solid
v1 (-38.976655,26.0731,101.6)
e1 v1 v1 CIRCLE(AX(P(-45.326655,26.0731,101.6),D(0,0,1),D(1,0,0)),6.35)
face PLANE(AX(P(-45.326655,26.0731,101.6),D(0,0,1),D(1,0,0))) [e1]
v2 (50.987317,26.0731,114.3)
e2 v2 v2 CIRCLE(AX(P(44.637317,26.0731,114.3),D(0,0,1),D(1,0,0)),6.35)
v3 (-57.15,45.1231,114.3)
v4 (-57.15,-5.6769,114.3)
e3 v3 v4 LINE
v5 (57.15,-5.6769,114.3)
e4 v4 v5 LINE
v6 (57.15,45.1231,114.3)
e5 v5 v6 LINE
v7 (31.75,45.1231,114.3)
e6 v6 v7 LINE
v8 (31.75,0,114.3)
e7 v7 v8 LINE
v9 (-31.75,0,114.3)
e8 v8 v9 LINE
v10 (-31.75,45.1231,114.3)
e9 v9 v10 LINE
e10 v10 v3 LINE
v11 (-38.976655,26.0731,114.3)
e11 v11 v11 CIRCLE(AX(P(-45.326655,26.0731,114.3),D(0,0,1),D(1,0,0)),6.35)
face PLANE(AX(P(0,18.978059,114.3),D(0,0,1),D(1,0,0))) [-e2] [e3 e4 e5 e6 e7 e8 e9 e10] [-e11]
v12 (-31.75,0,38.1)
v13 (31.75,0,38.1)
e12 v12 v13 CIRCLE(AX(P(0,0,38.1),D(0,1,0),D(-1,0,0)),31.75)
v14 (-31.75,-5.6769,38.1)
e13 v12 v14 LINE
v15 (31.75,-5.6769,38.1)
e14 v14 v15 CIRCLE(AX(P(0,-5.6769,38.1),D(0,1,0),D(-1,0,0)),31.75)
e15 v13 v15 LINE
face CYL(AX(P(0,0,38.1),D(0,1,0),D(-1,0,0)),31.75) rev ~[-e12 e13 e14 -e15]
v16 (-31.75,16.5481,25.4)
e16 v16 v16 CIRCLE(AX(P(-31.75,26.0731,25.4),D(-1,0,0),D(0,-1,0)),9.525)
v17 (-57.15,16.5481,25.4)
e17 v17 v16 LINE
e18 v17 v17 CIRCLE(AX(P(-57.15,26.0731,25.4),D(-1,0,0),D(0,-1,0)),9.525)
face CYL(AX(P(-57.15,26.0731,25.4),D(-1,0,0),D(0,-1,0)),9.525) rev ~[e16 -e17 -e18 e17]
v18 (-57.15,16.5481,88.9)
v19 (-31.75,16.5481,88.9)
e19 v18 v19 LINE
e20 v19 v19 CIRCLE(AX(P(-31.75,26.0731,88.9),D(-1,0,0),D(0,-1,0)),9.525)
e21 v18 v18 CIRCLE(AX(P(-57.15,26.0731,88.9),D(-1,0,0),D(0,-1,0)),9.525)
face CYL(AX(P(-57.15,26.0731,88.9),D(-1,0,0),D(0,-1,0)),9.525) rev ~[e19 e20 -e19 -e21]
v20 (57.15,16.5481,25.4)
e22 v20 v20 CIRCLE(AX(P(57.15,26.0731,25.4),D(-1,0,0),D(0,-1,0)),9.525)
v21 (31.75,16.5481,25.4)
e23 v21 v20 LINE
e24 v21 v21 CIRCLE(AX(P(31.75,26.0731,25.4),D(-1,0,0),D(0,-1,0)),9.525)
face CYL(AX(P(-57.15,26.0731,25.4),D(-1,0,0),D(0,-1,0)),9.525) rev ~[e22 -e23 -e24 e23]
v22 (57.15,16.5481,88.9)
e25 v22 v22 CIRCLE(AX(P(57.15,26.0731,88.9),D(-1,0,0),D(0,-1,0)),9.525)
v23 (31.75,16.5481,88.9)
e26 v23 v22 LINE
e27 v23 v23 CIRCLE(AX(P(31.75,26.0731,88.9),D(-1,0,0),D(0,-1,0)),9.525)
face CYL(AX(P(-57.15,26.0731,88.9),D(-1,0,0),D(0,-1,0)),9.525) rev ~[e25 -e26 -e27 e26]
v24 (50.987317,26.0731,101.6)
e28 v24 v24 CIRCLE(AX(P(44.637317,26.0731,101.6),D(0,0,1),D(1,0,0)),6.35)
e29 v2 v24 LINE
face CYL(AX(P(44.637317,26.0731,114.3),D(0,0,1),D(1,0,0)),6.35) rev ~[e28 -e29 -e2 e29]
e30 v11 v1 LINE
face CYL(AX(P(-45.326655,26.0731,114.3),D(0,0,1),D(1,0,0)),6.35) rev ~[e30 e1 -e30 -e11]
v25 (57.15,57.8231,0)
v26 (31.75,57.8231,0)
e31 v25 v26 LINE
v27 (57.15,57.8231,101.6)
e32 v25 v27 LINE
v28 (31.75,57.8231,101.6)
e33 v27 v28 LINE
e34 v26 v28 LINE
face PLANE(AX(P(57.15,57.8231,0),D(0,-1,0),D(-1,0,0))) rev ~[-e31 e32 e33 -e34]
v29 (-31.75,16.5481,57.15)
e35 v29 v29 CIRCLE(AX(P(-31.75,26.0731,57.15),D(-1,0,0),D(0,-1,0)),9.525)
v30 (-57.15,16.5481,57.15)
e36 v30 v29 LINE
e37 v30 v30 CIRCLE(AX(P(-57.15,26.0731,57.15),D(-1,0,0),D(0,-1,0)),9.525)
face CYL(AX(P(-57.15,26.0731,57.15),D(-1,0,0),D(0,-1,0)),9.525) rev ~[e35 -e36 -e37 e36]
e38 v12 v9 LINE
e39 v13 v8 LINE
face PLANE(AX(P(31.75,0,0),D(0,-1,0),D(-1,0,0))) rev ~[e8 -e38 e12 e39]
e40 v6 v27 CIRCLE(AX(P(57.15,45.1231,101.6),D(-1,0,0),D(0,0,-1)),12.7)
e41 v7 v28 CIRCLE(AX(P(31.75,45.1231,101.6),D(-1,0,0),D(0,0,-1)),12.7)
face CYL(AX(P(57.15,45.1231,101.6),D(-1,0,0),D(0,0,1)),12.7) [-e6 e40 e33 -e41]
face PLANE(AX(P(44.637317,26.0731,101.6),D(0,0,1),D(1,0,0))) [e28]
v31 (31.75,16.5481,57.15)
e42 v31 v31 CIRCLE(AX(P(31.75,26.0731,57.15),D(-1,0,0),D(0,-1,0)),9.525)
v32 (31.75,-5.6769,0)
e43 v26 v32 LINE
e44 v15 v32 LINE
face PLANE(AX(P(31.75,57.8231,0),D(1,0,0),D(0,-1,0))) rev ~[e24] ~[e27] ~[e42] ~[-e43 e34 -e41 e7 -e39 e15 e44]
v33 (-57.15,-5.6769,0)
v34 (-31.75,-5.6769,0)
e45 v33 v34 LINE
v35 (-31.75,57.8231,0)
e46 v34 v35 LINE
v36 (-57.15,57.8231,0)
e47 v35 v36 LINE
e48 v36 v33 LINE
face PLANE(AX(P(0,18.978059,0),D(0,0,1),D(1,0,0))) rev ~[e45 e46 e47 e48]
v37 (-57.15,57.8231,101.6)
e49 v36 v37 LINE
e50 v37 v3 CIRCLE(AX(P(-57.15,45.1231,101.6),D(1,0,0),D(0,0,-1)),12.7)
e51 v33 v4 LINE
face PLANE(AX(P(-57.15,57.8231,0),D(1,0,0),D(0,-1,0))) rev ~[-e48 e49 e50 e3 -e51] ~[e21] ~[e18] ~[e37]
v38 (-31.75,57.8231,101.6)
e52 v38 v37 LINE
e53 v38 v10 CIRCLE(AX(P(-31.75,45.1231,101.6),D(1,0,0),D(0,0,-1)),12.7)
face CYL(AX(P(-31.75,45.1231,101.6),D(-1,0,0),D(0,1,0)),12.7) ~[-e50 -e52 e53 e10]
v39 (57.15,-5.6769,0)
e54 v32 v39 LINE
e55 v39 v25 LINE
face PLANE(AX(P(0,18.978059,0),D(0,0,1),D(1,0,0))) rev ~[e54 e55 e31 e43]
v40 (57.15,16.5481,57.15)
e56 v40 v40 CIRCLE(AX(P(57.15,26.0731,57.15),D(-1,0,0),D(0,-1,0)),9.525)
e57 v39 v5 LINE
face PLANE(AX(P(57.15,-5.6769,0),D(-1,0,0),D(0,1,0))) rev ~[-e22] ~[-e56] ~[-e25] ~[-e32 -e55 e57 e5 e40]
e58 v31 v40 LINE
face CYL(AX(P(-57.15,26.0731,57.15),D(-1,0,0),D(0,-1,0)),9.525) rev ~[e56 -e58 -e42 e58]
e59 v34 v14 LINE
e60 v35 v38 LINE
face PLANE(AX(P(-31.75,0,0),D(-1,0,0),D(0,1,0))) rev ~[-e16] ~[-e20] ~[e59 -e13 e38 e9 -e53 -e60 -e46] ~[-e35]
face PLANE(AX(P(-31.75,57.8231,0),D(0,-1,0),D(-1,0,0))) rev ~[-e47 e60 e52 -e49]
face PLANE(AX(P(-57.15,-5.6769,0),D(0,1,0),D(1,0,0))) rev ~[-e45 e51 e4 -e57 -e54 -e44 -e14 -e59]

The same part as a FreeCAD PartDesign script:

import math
import FreeCAD as App
import Part
import Sketcher

V = App.Vector
Q = App.Units.Quantity


def edges_at(feature, points):
    """Names of the edges that pass closest to the given points."""
    edges = feature.Shape.Edges
    near = lambda p: min(range(len(edges)), key=lambda i: edges[i].distToShape(Part.Vertex(*p))[0])
    return sorted({f"Edge{near(p) + 1}" for p in points})

doc = App.newDocument("Part")
body = doc.addObject("PartDesign::Body", "Body")

# Sketch on XY plane
sketch1 = body.newObject("Sketcher::SketchObject", "Sketch")
sketch1.AttachmentSupport = (doc.getObject("XY_Plane"), [""])
sketch1.MapMode = "FlatFace"
sketch1.addGeometry([
    Part.LineSegment(V(-31.75, 57.8231, 0), V(-57.15, 57.8231, 0)),  # 0
    Part.LineSegment(V(-57.15, 57.8231, 0), V(-57.15, -5.6769, 0)),  # 1
    Part.LineSegment(V(-57.15, -5.6769, 0), V(57.15, -5.6769, 0)),  # 2
    Part.LineSegment(V(57.15, -5.6769, 0), V(57.15, 57.8231, 0)),  # 3
    Part.LineSegment(V(57.15, 57.8231, 0), V(31.75, 57.8231, 0)),  # 4
    Part.LineSegment(V(31.75, 57.8231, 0), V(31.75, 0, 0)),  # 5
    Part.LineSegment(V(31.75, 0, 0), V(-31.75, 0, 0)),  # 6
    Part.LineSegment(V(-31.75, 0, 0), V(-31.75, 57.8231, 0)),  # 7
], False)
sketch1.addConstraint([
    Sketcher.Constraint("Coincident", 0, 2, 1, 1),
    Sketcher.Constraint("Coincident", 1, 2, 2, 1),
    Sketcher.Constraint("Coincident", 2, 2, 3, 1),
    Sketcher.Constraint("Coincident", 3, 2, 4, 1),
    Sketcher.Constraint("Coincident", 4, 2, 5, 1),
    Sketcher.Constraint("Coincident", 5, 2, 6, 1),
    Sketcher.Constraint("Coincident", 6, 2, 7, 1),
    Sketcher.Constraint("Coincident", 7, 2, 0, 1),
    Sketcher.Constraint("Horizontal", 0),
    Sketcher.Constraint("Vertical", 1),
    Sketcher.Constraint("Horizontal", 2),
    Sketcher.Constraint("Vertical", 3),
    Sketcher.Constraint("Horizontal", 4),
    Sketcher.Constraint("Vertical", 5),
    Sketcher.Constraint("Horizontal", 6),
    Sketcher.Constraint("Vertical", 7),
    Sketcher.Constraint("Symmetric", 5, 2, 6, 2, -1, 1),
    Sketcher.Constraint("Symmetric", 0, 2, 3, 2, -2),
    Sketcher.Constraint("Equal", 6, 1),
    Sketcher.Constraint("DistanceX", 0, 2, 0, 1, Q("1 in")),
    Sketcher.Constraint("DistanceX", 2, 1, 2, 2, Q("4.5 in")),
    Sketcher.Constraint("DistanceY", 5, 2, 5, 1, Q("2.2765 in")),
])
pad1 = body.newObject("PartDesign::Pad", "Pad")
pad1.Profile = sketch1
pad1.Length = Q("4.5 in")

# Sketch on YZ plane
sketch2 = body.newObject("Sketcher::SketchObject", "Sketch001")
sketch2.AttachmentSupport = (doc.getObject("YZ_Plane"), [""])
sketch2.MapMode = "FlatFace"
sketch2.AttachmentOffset = App.Placement(V(0, 0, -2.25 * 25.4), App.Rotation())
sketch2.addGeometry([
    Part.Circle(V(26.0731, 25.4, 0), V(0, 0, 1), 9.525),
    Part.Circle(V(26.0731, 88.9, 0), V(0, 0, 1), 9.525),
    Part.Circle(V(26.0731, 57.15, 0), V(0, 0, 1), 9.525),
], False)
sketch2.addConstraint([
    Sketcher.Constraint("Equal", 0, 1),
    Sketcher.Constraint("Equal", 1, 2),
    Sketcher.Constraint("Vertical", 0, 3, 1, 3),
    Sketcher.Constraint("Vertical", 1, 3, 2, 3),
    Sketcher.Constraint("Diameter", 0, Q("0.75 in")),
    Sketcher.Constraint("DistanceY", -1, 1, 0, 3, Q("1 in")),
    Sketcher.Constraint("DistanceY", -1, 1, 1, 3, Q("3.5 in")),
    Sketcher.Constraint("DistanceY", -1, 1, 2, 3, Q("2.25 in")),
    Sketcher.Constraint("DistanceX", -1, 1, 0, 3, Q("1.0265 in")),
])
pocket1 = body.newObject("PartDesign::Pocket", "Pocket")
pocket1.Profile = sketch2
pocket1.Type = "ThroughAll"
pocket1.Reversed = True

# Sketch on XZ plane
sketch3 = body.newObject("Sketcher::SketchObject", "Sketch002")
sketch3.AttachmentSupport = (doc.getObject("XZ_Plane"), [""])
sketch3.MapMode = "FlatFace"
sketch3.addGeometry([
    Part.LineSegment(V(31.75, 38.1, 0), V(31.75, 0, 0)),
    Part.LineSegment(V(31.75, 0, 0), V(-31.75, 0, 0)),
    Part.LineSegment(V(-31.75, 0, 0), V(-31.75, 38.1, 0)),
    Part.ArcOfCircle(Part.Circle(V(0, 38.1, 0), V(0, 0, 1), 31.75), math.radians(0), math.radians(180)),
], False)
sketch3.addConstraint([
    Sketcher.Constraint("Coincident", 0, 2, 1, 1),
    Sketcher.Constraint("Coincident", 1, 2, 2, 1),
    Sketcher.Constraint("Tangent", 2, 2, 3, 2),
    Sketcher.Constraint("Tangent", 3, 1, 0, 1),
    Sketcher.Constraint("Vertical", 0),
    Sketcher.Constraint("Horizontal", 1),
    Sketcher.Constraint("Vertical", 2),
    Sketcher.Constraint("Symmetric", 0, 2, 1, 2, -1, 1),
    Sketcher.Constraint("Radius", 3, Q("1.25 in")),
    Sketcher.Constraint("DistanceY", 0, 2, 0, 1, Q("1.5 in")),
])
pocket2 = body.newObject("PartDesign::Pocket", "Pocket001")
pocket2.Profile = sketch3
pocket2.Type = "ThroughAll"
pocket2.Reversed = True
doc.recompute()

fillet = body.newObject("PartDesign::Fillet", "Fillet")
fillet.Base = (pocket2, edges_at(pocket2, [(44.45, 57.823, 114.3), (-44.45, 57.823, 114.3)]))
fillet.Radius = Q("0.5 in")

# Sketch on XY plane
sketch4 = body.newObject("Sketcher::SketchObject", "Sketch003")
sketch4.AttachmentSupport = (doc.getObject("XY_Plane"), [""])
sketch4.MapMode = "FlatFace"
sketch4.AttachmentOffset = App.Placement(V(0, 0, 4.5 * 25.4), App.Rotation())
sketch4.addGeometry([
    Part.Circle(V(-45.326655, 26.0731, 0), V(0, 0, 1), 6.35),
    Part.Circle(V(44.637317, 26.0731, 0), V(0, 0, 1), 6.35),
], False)
sketch4.addConstraint([
    Sketcher.Constraint("Equal", 0, 1),
    Sketcher.Constraint("Horizontal", 0, 3, 1, 3),
    Sketcher.Constraint("Diameter", 0, Q("0.5 in")),
    Sketcher.Constraint("DistanceY", -1, 1, 0, 3, Q("1.0265 in")),
    Sketcher.Constraint("DistanceX", 0, 3, -1, 1, 45.326655),
    Sketcher.Constraint("DistanceX", -1, 1, 1, 3, 44.637317),
])
pocket3 = body.newObject("PartDesign::Pocket", "Pocket002")
pocket3.Profile = sketch4
pocket3.Length = Q("0.5 in")

doc.recompute()
